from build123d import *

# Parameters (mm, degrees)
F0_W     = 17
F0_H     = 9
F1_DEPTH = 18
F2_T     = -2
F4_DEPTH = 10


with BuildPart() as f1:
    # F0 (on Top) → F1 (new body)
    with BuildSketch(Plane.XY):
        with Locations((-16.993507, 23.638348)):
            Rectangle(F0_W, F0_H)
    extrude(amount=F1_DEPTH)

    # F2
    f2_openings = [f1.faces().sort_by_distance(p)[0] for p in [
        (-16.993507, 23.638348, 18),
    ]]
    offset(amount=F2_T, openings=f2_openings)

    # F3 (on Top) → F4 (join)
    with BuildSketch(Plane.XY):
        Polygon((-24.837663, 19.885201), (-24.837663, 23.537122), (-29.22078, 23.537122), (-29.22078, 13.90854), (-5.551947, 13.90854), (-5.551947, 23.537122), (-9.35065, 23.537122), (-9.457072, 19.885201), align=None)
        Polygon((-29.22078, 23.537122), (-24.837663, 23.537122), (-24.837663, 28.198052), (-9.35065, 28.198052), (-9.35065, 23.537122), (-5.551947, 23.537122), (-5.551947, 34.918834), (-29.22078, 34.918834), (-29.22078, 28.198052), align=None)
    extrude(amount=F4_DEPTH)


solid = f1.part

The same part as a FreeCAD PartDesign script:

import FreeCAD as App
import Part
import Sketcher
Q = App.Units.Quantity


def faces_at(feature, points):
    """Names of the faces that lie closest to the given points."""
    faces = feature.Shape.Faces
    near = lambda p: min(range(len(faces)), key=lambda i: faces[i].distToShape(Part.Vertex(*p))[0])
    return sorted({f"Face{near(p) + 1}" for p in points})

doc = App.newDocument("Part")
params = doc.addObject("Spreadsheet::Sheet", "Params")
for row, (alias, value) in enumerate([
    ("sketch1_width", "17 mm"),
    ("sketch1_height", "9 mm"),
    ("pad1_length", "18 mm"),
    ("thickness_wall", "2 mm"),
    ("pad2_length", "10 mm"),
], start=1):
    params.set(f"A{row}", alias)
    params.set(f"B{row}", "=" + value)
    params.setAlias(f"B{row}", alias)

body = doc.addObject("PartDesign::Body", "Body")

# Sketch on XY plane
sketch1 = body.newObject("Sketcher::SketchObject", "Sketch")
sketch1.AttachmentSupport = (doc.getObject("XY_Plane"), [""])
sketch1.MapMode = "FlatFace"
sketch1.addGeometry([
    Part.LineSegment(App.Vector(-25, 28, 0), App.Vector(-25, 19, 0)),
    Part.LineSegment(App.Vector(-25, 19, 0), App.Vector(-8, 19, 0)),
    Part.LineSegment(App.Vector(-8, 19, 0), App.Vector(-8, 28, 0)),
    Part.LineSegment(App.Vector(-8, 28, 0), App.Vector(-25, 28, 0)),
], False)
sketch1.addConstraint([
    Sketcher.Constraint("Coincident", 0, 2, 1, 1),
    Sketcher.Constraint("Coincident", 1, 2, 2, 1),
    Sketcher.Constraint("Coincident", 2, 2, 3, 1),
    Sketcher.Constraint("Coincident", 3, 2, 0, 1),
    Sketcher.Constraint("Vertical", 0),
    Sketcher.Constraint("Horizontal", 1),
    Sketcher.Constraint("Vertical", 2),
    Sketcher.Constraint("Horizontal", 3),
    Sketcher.Constraint("DistanceX", 1, 1, 1, 2, Q("17 mm")),
    Sketcher.Constraint("DistanceY", 0, 2, 0, 1, Q("9 mm")),
    Sketcher.Constraint("DistanceY", -1, 1, 0, 2, Q("19.138348 mm")),
    Sketcher.Constraint("DistanceX", 0, 2, -1, 1, Q("25.493507 mm")),
])
sketch1.setExpression("Constraints[8]", "Params.sketch1_width")
sketch1.setExpression("Constraints[9]", "Params.sketch1_height")
pad1 = body.newObject("PartDesign::Pad", "Pad")
pad1.Profile = sketch1
pad1.setExpression("Length", "Params.pad1_length")
doc.recompute()

thickness = body.newObject("PartDesign::Thickness", "Thickness")
thickness.Base = (pad1, faces_at(pad1, [(-16.994, 23.638, 18)]))
thickness.setExpression("Value", "Params.thickness_wall")
thickness.Reversed = True
thickness.Join = "Arc"

# Sketch on XY plane
sketch2 = body.newObject("Sketcher::SketchObject", "Sketch001")
sketch2.AttachmentSupport = (doc.getObject("XY_Plane"), [""])
sketch2.MapMode = "FlatFace"
sketch2.addGeometry([
    Part.LineSegment(App.Vector(-29.2, 13.9, 0), App.Vector(-5.6, 13.9, 0)),  # 0
    Part.LineSegment(App.Vector(-5.6, 13.9, 0), App.Vector(-5.6, 34.9, 0)),  # 1
    Part.LineSegment(App.Vector(-5.6, 34.9, 0), App.Vector(-29.2, 34.9, 0)),  # 2
    Part.LineSegment(App.Vector(-29.2, 34.9, 0), App.Vector(-29.2, 13.9, 0)),  # 3
    Part.LineSegment(App.Vector(-24.8, 19.9, 0), App.Vector(-24.8, 28.2, 0)),  # 4
    Part.LineSegment(App.Vector(-24.8, 28.2, 0), App.Vector(-9.4, 28.2, 0)),  # 5
    Part.LineSegment(App.Vector(-9.4, 28.2, 0), App.Vector(-9.4, 23.5, 0)),  # 6
    Part.LineSegment(App.Vector(-9.4, 23.5, 0), App.Vector(-9.5, 19.9, 0)),  # 7
    Part.LineSegment(App.Vector(-9.5, 19.9, 0), App.Vector(-24.8, 19.9, 0)),  # 8
], False)
sketch2.addConstraint([
    Sketcher.Constraint("Coincident", 0, 2, 1, 1),
    Sketcher.Constraint("Coincident", 1, 2, 2, 1),
    Sketcher.Constraint("Coincident", 2, 2, 3, 1),
    Sketcher.Constraint("Coincident", 3, 2, 0, 1),
    Sketcher.Constraint("Coincident", 4, 2, 5, 1),
    Sketcher.Constraint("Coincident", 5, 2, 6, 1),
    Sketcher.Constraint("Coincident", 6, 2, 7, 1),
    Sketcher.Constraint("Coincident", 7, 2, 8, 1),
    Sketcher.Constraint("Coincident", 8, 2, 4, 1),
    Sketcher.Constraint("Horizontal", 0),
    Sketcher.Constraint("Vertical", 1),
    Sketcher.Constraint("Horizontal", 2),
    Sketcher.Constraint("Vertical", 3),
    Sketcher.Constraint("Vertical", 4),
    Sketcher.Constraint("Horizontal", 5),
    Sketcher.Constraint("Vertical", 6),
    Sketcher.Constraint("Horizontal", 8),
    Sketcher.Constraint("DistanceX", 8, 2, 8, 1, Q("15.380591 mm")),
    Sketcher.Constraint("DistanceY", 4, 1, 4, 2, Q("8.312851 mm")),
    Sketcher.Constraint("DistanceY", 6, 2, 6, 1, Q("4.66093 mm")),
    Sketcher.Constraint("DistanceY", -1, 1, 7, 2, Q("19.885201 mm")),
    Sketcher.Constraint("Distance", 7, Q("3.653471 mm")),
    Sketcher.Constraint("DistanceX", 0, 1, 0, 2, Q("23.668833 mm")),
    Sketcher.Constraint("DistanceY", 1, 1, 1, 2, Q("21.010294 mm")),
    Sketcher.Constraint("DistanceY", -1, 1, 0, 2, Q("13.90854 mm")),
    Sketcher.Constraint("DistanceX", 2, 2, -1, 1, Q("29.22078 mm")),
    Sketcher.Constraint("DistanceX", 5, 2, -1, 1, Q("9.35065 mm")),
])
pad2 = body.newObject("PartDesign::Pad", "Pad001")
pad2.Profile = sketch2
pad2.setExpression("Length", "Params.pad2_length")

doc.recompute()
